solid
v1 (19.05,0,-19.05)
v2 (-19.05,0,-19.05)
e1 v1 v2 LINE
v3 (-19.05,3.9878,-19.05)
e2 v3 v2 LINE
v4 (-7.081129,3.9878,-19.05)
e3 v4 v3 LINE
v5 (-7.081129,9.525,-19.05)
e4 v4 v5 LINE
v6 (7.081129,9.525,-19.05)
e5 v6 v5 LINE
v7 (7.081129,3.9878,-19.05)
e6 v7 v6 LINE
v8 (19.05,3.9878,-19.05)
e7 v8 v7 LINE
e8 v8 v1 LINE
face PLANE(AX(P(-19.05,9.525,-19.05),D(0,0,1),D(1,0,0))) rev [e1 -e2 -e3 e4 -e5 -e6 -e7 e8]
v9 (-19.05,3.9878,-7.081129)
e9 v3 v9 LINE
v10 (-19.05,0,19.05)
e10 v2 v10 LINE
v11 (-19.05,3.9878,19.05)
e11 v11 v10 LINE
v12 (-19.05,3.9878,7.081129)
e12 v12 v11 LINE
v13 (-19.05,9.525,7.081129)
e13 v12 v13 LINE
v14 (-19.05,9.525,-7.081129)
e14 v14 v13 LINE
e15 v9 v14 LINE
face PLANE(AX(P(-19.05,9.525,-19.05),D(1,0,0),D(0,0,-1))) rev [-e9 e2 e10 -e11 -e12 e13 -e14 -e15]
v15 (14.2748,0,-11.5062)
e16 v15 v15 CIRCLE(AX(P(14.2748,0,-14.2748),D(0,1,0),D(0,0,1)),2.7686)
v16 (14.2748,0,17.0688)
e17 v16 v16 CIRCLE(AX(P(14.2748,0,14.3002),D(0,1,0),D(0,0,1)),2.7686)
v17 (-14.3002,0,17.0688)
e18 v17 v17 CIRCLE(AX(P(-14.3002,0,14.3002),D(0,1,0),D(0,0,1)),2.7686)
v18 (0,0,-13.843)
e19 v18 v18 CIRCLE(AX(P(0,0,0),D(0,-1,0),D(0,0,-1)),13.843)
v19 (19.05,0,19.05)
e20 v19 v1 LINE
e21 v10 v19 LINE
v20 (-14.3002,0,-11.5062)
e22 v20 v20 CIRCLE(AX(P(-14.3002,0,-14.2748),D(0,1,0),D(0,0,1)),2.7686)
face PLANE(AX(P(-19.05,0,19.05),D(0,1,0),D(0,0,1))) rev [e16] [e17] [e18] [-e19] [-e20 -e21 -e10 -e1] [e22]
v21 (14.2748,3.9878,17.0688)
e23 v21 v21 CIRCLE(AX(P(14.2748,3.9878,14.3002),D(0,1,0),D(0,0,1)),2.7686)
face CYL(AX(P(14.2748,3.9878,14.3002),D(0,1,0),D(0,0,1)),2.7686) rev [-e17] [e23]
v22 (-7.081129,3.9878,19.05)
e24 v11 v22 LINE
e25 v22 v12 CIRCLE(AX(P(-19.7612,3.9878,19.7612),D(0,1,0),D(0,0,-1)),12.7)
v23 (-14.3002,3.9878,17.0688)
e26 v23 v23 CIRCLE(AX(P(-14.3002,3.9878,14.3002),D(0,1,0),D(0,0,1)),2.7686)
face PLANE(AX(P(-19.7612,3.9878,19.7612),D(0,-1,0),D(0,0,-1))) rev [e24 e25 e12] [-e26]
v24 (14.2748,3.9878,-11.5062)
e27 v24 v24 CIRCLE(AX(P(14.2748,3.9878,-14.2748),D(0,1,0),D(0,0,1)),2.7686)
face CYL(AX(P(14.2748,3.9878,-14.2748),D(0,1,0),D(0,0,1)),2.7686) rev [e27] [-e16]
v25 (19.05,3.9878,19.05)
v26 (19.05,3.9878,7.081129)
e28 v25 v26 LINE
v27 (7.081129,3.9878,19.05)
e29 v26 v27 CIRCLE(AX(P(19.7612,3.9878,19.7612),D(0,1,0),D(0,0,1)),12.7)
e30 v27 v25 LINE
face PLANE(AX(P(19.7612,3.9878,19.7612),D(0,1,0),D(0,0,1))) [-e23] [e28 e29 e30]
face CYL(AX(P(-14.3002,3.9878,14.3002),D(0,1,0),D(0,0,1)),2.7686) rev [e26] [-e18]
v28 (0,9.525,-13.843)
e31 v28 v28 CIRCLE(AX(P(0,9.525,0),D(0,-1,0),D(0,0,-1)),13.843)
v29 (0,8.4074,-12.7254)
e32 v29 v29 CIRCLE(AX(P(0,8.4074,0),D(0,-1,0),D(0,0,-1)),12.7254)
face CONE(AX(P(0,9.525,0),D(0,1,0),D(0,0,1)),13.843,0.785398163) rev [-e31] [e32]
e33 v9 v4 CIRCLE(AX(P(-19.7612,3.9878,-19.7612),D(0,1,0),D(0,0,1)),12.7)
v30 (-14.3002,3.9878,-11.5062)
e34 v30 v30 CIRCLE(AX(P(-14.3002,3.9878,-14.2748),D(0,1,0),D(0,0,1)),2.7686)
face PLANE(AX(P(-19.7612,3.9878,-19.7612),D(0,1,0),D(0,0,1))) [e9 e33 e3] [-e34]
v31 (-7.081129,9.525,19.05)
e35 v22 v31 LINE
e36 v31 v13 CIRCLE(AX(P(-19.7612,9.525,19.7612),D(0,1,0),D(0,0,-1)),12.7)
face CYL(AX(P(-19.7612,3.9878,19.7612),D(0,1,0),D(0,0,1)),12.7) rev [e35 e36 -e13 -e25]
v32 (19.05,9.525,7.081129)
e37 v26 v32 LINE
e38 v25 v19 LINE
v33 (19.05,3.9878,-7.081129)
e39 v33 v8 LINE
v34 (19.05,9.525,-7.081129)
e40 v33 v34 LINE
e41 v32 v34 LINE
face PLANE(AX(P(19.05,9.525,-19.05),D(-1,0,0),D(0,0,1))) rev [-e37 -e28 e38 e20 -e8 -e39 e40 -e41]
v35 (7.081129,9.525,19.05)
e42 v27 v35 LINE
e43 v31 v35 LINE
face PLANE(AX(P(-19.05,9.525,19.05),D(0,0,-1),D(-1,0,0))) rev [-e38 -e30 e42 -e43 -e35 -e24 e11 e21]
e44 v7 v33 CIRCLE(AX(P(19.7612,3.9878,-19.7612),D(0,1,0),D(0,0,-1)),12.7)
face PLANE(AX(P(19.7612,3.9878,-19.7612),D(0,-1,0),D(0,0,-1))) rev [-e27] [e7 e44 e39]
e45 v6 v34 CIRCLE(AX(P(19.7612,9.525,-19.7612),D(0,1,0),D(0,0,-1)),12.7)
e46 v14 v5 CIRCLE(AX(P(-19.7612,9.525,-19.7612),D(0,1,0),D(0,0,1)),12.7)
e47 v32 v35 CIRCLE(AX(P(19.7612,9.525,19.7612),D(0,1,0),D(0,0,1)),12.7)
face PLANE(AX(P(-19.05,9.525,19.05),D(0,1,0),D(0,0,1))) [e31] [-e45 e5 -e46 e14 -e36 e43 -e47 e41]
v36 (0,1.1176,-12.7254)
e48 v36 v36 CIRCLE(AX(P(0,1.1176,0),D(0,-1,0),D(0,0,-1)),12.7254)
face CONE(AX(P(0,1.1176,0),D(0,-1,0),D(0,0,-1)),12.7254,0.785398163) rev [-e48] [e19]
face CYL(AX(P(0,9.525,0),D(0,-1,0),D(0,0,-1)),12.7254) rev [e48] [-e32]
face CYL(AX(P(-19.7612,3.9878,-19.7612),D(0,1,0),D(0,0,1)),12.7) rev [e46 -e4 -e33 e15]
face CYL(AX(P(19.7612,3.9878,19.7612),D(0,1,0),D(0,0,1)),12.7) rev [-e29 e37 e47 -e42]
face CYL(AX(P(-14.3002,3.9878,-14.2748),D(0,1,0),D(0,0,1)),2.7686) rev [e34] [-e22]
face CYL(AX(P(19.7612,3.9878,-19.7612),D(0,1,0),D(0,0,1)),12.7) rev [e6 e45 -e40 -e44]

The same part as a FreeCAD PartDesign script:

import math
import FreeCAD as App
import Part
import Sketcher
from FreeCAD import Vector
Q = App.Units.Quantity

doc = App.newDocument("Part")
body = doc.addObject("PartDesign::Body", "Body")

# Sketch on XZ plane
sketch1 = body.newObject("Sketcher::SketchObject", "Sketch")
sketch1.AttachmentSupport = (doc.getObject("XZ_Plane"), [""])
sketch1.MapMode = "FlatFace"
sketch1.addGeometry(Part.LineSegment(Vector(-19, -19, 0), Vector(-19, 19, 0)), False)
sketch1.addGeometry(Part.LineSegment(Vector(-19, 19, 0), Vector(19, 19, 0)), False)
sketch1.addGeometry(Part.LineSegment(Vector(19, 19, 0), Vector(19, -19, 0)), False)
sketch1.addGeometry(Part.LineSegment(Vector(19, -19, 0), Vector(-19, -19, 0)), False)
sketch1.addGeometry(Part.Circle(Vector(0, 0, 0), Vector(0, 0, 1), 13), False)
sketch1.addConstraint(Sketcher.Constraint("Coincident", 0, 2, 1, 1))
sketch1.addConstraint(Sketcher.Constraint("Coincident", 1, 2, 2, 1))
sketch1.addConstraint(Sketcher.Constraint("Coincident", 2, 2, 3, 1))
sketch1.addConstraint(Sketcher.Constraint("Coincident", 3, 2, 0, 1))
sketch1.addConstraint(Sketcher.Constraint("Vertical", 0))
sketch1.addConstraint(Sketcher.Constraint("Horizontal", 1))
sketch1.addConstraint(Sketcher.Constraint("Vertical", 2))
sketch1.addConstraint(Sketcher.Constraint("Horizontal", 3))
sketch1.addConstraint(Sketcher.Constraint("Coincident", 4, 3, -1, 1))
sketch1.addConstraint(Sketcher.Constraint("Symmetric", 0, 2, 2, 2, -1, 1))
sketch1.addConstraint(Sketcher.Constraint("Equal", 3, 0))
sketch1.addConstraint(Sketcher.Constraint("Diameter", 4, Q("1.002 in")))
sketch1.addConstraint(Sketcher.Constraint("DistanceX", 1, 1, 1, 2, Q("1.5 in")))
pad1 = body.newObject("PartDesign::Pad", "Pad")
pad1.Profile = sketch1
pad1.Length = Q("0.375 in")
pad1.Reversed = True

# Sketch on XZ plane
sketch2 = body.newObject("Sketcher::SketchObject", "Sketch001")
sketch2.AttachmentSupport = (doc.getObject("XZ_Plane"), [""])
sketch2.MapMode = "FlatFace"
sketch2.AttachmentOffset = App.Placement(Vector(0, 0, -0.375 * 25.4), App.Rotation())
sketch2.addGeometry(Part.LineSegment(Vector(7, 19, 0), Vector(19, 19, 0)), False)
sketch2.addGeometry(Part.LineSegment(Vector(19, 19, 0), Vector(19, 7, 0)), False)
sketch2.addGeometry(Part.ArcOfCircle(Part.Circle(Vector(20, 20, 0), Vector(0, 0, 1), 13), math.radians(-177), math.radians(-93)), False)
sketch2.addGeometry(Part.LineSegment(Vector(19, -7, 0), Vector(19, -19, 0)), False)
sketch2.addGeometry(Part.LineSegment(Vector(19, -19, 0), Vector(7, -19, 0)), False)
sketch2.addGeometry(Part.ArcOfCircle(Part.Circle(Vector(20, -20, 0), Vector(0, 0, 1), 13), math.radians(93), math.radians(177)), False)
sketch2.addGeometry(Part.LineSegment(Vector(-7, -19, 0), Vector(-19, -19, 0)), False)
sketch2.addGeometry(Part.LineSegment(Vector(-19, -19, 0), Vector(-19, -7, 0)), False)
sketch2.addGeometry(Part.ArcOfCircle(Part.Circle(Vector(-20, -20, 0), Vector(0, 0, 1), 13), math.radians(3), math.radians(87)), False)
sketch2.addGeometry(Part.LineSegment(Vector(-19, 7, 0), Vector(-19, 19, 0)), False)
sketch2.addGeometry(Part.LineSegment(Vector(-19, 19, 0), Vector(-7, 19, 0)), False)
sketch2.addGeometry(Part.ArcOfCircle(Part.Circle(Vector(-20, 20, 0), Vector(0, 0, 1), 13), math.radians(-87), math.radians(-3)), False)
sketch2.addConstraint(Sketcher.Constraint("Coincident", 0, 2, 1, 1))
sketch2.addConstraint(Sketcher.Constraint("Coincident", 1, 2, 2, 2))
sketch2.addConstraint(Sketcher.Constraint("Coincident", 2, 1, 0, 1))
sketch2.addConstraint(Sketcher.Constraint("Coincident", 3, 2, 4, 1))
sketch2.addConstraint(Sketcher.Constraint("Coincident", 4, 2, 5, 2))
sketch2.addConstraint(Sketcher.Constraint("Coincident", 5, 1, 3, 1))
sketch2.addConstraint(Sketcher.Constraint("Coincident", 6, 2, 7, 1))
sketch2.addConstraint(Sketcher.Constraint("Coincident", 7, 2, 8, 2))
sketch2.addConstraint(Sketcher.Constraint("Coincident", 8, 1, 6, 1))
sketch2.addConstraint(Sketcher.Constraint("Coincident", 9, 2, 10, 1))
sketch2.addConstraint(Sketcher.Constraint("Coincident", 10, 2, 11, 2))
sketch2.addConstraint(Sketcher.Constraint("Coincident", 11, 1, 9, 1))
sketch2.addConstraint(Sketcher.Constraint("Horizontal", 0))
sketch2.addConstraint(Sketcher.Constraint("Vertical", 1))
sketch2.addConstraint(Sketcher.Constraint("Vertical", 3))
sketch2.addConstraint(Sketcher.Constraint("Horizontal", 4))
sketch2.addConstraint(Sketcher.Constraint("Horizontal", 6))
sketch2.addConstraint(Sketcher.Constraint("Vertical", 7))
sketch2.addConstraint(Sketcher.Constraint("Vertical", 9))
sketch2.addConstraint(Sketcher.Constraint("Horizontal", 10))
sketch2.addConstraint(Sketcher.Constraint("Equal", 2, 5))
sketch2.addConstraint(Sketcher.Constraint("Equal", 5, 8))
sketch2.addConstraint(Sketcher.Constraint("Equal", 8, 11))
sketch2.addConstraint(Sketcher.Constraint("Symmetric", 2, 3, 8, 3, -1, 1))
sketch2.addConstraint(Sketcher.Constraint("Symmetric", 5, 3, 11, 3, -1, 1))
sketch2.addConstraint(Sketcher.Constraint("Symmetric", 0, 2, 6, 2, -1, 1))
sketch2.addConstraint(Sketcher.Constraint("Symmetric", 3, 2, 9, 2, -1, 1))
sketch2.addConstraint(Sketcher.Constraint("Symmetric", 5, 3, 8, 3, -2))
sketch2.addConstraint(Sketcher.Constraint("Symmetric", 3, 2, 6, 2, -2))
sketch2.addConstraint(Sketcher.Constraint("Equal", 10, 1))
sketch2.addConstraint(Sketcher.Constraint("Radius", 2, Q("0.5 in")))
sketch2.addConstraint(Sketcher.Constraint("DistanceY", 3, 2, 0, 2, Q("1.5 in")))
sketch2.addConstraint(Sketcher.Constraint("DistanceX", 6, 2, 3, 2, Q("1.5 in")))
sketch2.addConstraint(Sketcher.Constraint("DistanceX", -1, 1, 2, 3, Q("0.778 in")))
pocket1 = body.newObject("PartDesign::Pocket", "Pocket")
pocket1.Profile = sketch2
pocket1.Length = Q("0.218 in")
pocket1.Reversed = True

# Sketch on XZ plane
sketch3 = body.newObject("Sketcher::SketchObject", "Sketch002")
sketch3.AttachmentSupport = (doc.getObject("XZ_Plane"), [""])
sketch3.MapMode = "FlatFace"
sketch3.AttachmentOffset = App.Placement(Vector(0, 0, -0.157 * 25.4), App.Rotation())
sketch3.addGeometry(Part.Circle(Vector(-14.3, 14.3, 0), Vector(0, 0, 1), 2.8), False)
sketch3.addGeometry(Part.Circle(Vector(-14.3, -14.3, 0), Vector(0, 0, 1), 2.8), False)
sketch3.addGeometry(Part.Circle(Vector(14.3, 14.3, 0), Vector(0, 0, 1), 2.8), False)
sketch3.addGeometry(Part.Circle(Vector(14.3, -14.3, 0), Vector(0, 0, 1), 2.8), False)
sketch3.addConstraint(Sketcher.Constraint("Equal", 0, 1))
sketch3.addConstraint(Sketcher.Constraint("Equal", 1, 2))
sketch3.addConstraint(Sketcher.Constraint("Equal", 2, 3))
sketch3.addConstraint(Sketcher.Constraint("Horizontal", 0, 3, 2, 3))
sketch3.addConstraint(Sketcher.Constraint("Horizontal", 1, 3, 3, 3))
sketch3.addConstraint(Sketcher.Constraint("Vertical", 0, 3, 1, 3))
sketch3.addConstraint(Sketcher.Constraint("Vertical", 2, 3, 3, 3))
sketch3.addConstraint(Sketcher.Constraint("Diameter", 0, Q("0.218 in")))
sketch3.addConstraint(Sketcher.Constraint("DistanceX", 0, 3, -1, 1, Q("0.563 in")))
sketch3.addConstraint(Sketcher.Constraint("DistanceY", -1, 1, 0, 3, Q("0.563 in")))
sketch3.addConstraint(Sketcher.Constraint("DistanceY", 1, 3, -1, 1, Q("0.562 in")))
sketch3.addConstraint(Sketcher.Constraint("DistanceX", -1, 1, 2, 3, Q("0.562 in")))
doc.recompute()
hole = body.newObject("PartDesign::Hole", "Hole")
hole.Profile = sketch3
hole.ThreadType = "None"
hole.Diameter = Q("0.218 in")
hole.DepthType = "Dimension"
hole.Depth = Q("0.157 in")
hole.DrillPoint = "Flat"
hole.Reversed = True

# Sketch on YZ plane
sketch4 = body.newObject("Sketcher::SketchObject", "Sketch003")
sketch4.AttachmentSupport = (doc.getObject("YZ_Plane"), [""])
sketch4.MapMode = "FlatFace"
sketch4.addGeometry(Part.LineSegment(Vector(9.5, 12.7, 0), Vector(9.5, 13.8, 0)), False)
sketch4.addGeometry(Part.LineSegment(Vector(9.5, 13.8, 0), Vector(8.4, 12.7, 0)), False)
sketch4.addGeometry(Part.LineSegment(Vector(8.4, 12.7, 0), Vector(9.5, 12.7, 0)), False)
sketch4.addGeometry(Part.LineSegment(Vector(1.1, 12.7, 0), Vector(0, 13.8, 0)), False)
sketch4.addGeometry(Part.LineSegment(Vector(0, 13.8, 0), Vector(0, 12.7, 0)), False)
sketch4.addGeometry(Part.LineSegment(Vector(0, 12.7, 0), Vector(1.1, 12.7, 0)), False)
sketch4.addConstraint(Sketcher.Constraint("Coincident", 0, 2, 1, 1))
sketch4.addConstraint(Sketcher.Constraint("Coincident", 1, 2, 2, 1))
sketch4.addConstraint(Sketcher.Constraint("Coincident", 2, 2, 0, 1))
sketch4.addConstraint(Sketcher.Constraint("Coincident", 3, 2, 4, 1))
sketch4.addConstraint(Sketcher.Constraint("Coincident", 4, 2, 5, 1))
sketch4.addConstraint(Sketcher.Constraint("Coincident", 5, 2, 3, 1))
sketch4.addConstraint(Sketcher.Constraint("Vertical", 0))
sketch4.addConstraint(Sketcher.Constraint("Horizontal", 2))
sketch4.addConstraint(Sketcher.Constraint("Vertical", 4))
sketch4.addConstraint(Sketcher.Constraint("Horizontal", 5))
sketch4.addConstraint(Sketcher.Constraint("PointOnObject", 3, 2, -2))
sketch4.addConstraint(Sketcher.Constraint("Perpendicular", 1, 3))
sketch4.addConstraint(Sketcher.Constraint("Horizontal", 0, 2, 3, 2))
sketch4.addConstraint(Sketcher.Constraint("Horizontal", 2, 2, 4, 2))
sketch4.addConstraint(Sketcher.Constraint("Equal", 2, 5))
sketch4.addConstraint(Sketcher.Constraint("DistanceX", 2, 1, 2, 2, Q("0.044 in")))
sketch4.addConstraint(Sketcher.Constraint("DistanceX", -1, 1, 0, 2, Q("0.375 in")))
sketch4.addConstraint(Sketcher.Constraint("DistanceY", -1, 1, 0, 2, Q("0.545 in")))
groove = body.newObject("PartDesign::Groove", "Groove")
groove.Profile = sketch4
groove.ReferenceAxis = (sketch4, ["H_Axis"])
groove.Angle = 360

doc.recompute()
